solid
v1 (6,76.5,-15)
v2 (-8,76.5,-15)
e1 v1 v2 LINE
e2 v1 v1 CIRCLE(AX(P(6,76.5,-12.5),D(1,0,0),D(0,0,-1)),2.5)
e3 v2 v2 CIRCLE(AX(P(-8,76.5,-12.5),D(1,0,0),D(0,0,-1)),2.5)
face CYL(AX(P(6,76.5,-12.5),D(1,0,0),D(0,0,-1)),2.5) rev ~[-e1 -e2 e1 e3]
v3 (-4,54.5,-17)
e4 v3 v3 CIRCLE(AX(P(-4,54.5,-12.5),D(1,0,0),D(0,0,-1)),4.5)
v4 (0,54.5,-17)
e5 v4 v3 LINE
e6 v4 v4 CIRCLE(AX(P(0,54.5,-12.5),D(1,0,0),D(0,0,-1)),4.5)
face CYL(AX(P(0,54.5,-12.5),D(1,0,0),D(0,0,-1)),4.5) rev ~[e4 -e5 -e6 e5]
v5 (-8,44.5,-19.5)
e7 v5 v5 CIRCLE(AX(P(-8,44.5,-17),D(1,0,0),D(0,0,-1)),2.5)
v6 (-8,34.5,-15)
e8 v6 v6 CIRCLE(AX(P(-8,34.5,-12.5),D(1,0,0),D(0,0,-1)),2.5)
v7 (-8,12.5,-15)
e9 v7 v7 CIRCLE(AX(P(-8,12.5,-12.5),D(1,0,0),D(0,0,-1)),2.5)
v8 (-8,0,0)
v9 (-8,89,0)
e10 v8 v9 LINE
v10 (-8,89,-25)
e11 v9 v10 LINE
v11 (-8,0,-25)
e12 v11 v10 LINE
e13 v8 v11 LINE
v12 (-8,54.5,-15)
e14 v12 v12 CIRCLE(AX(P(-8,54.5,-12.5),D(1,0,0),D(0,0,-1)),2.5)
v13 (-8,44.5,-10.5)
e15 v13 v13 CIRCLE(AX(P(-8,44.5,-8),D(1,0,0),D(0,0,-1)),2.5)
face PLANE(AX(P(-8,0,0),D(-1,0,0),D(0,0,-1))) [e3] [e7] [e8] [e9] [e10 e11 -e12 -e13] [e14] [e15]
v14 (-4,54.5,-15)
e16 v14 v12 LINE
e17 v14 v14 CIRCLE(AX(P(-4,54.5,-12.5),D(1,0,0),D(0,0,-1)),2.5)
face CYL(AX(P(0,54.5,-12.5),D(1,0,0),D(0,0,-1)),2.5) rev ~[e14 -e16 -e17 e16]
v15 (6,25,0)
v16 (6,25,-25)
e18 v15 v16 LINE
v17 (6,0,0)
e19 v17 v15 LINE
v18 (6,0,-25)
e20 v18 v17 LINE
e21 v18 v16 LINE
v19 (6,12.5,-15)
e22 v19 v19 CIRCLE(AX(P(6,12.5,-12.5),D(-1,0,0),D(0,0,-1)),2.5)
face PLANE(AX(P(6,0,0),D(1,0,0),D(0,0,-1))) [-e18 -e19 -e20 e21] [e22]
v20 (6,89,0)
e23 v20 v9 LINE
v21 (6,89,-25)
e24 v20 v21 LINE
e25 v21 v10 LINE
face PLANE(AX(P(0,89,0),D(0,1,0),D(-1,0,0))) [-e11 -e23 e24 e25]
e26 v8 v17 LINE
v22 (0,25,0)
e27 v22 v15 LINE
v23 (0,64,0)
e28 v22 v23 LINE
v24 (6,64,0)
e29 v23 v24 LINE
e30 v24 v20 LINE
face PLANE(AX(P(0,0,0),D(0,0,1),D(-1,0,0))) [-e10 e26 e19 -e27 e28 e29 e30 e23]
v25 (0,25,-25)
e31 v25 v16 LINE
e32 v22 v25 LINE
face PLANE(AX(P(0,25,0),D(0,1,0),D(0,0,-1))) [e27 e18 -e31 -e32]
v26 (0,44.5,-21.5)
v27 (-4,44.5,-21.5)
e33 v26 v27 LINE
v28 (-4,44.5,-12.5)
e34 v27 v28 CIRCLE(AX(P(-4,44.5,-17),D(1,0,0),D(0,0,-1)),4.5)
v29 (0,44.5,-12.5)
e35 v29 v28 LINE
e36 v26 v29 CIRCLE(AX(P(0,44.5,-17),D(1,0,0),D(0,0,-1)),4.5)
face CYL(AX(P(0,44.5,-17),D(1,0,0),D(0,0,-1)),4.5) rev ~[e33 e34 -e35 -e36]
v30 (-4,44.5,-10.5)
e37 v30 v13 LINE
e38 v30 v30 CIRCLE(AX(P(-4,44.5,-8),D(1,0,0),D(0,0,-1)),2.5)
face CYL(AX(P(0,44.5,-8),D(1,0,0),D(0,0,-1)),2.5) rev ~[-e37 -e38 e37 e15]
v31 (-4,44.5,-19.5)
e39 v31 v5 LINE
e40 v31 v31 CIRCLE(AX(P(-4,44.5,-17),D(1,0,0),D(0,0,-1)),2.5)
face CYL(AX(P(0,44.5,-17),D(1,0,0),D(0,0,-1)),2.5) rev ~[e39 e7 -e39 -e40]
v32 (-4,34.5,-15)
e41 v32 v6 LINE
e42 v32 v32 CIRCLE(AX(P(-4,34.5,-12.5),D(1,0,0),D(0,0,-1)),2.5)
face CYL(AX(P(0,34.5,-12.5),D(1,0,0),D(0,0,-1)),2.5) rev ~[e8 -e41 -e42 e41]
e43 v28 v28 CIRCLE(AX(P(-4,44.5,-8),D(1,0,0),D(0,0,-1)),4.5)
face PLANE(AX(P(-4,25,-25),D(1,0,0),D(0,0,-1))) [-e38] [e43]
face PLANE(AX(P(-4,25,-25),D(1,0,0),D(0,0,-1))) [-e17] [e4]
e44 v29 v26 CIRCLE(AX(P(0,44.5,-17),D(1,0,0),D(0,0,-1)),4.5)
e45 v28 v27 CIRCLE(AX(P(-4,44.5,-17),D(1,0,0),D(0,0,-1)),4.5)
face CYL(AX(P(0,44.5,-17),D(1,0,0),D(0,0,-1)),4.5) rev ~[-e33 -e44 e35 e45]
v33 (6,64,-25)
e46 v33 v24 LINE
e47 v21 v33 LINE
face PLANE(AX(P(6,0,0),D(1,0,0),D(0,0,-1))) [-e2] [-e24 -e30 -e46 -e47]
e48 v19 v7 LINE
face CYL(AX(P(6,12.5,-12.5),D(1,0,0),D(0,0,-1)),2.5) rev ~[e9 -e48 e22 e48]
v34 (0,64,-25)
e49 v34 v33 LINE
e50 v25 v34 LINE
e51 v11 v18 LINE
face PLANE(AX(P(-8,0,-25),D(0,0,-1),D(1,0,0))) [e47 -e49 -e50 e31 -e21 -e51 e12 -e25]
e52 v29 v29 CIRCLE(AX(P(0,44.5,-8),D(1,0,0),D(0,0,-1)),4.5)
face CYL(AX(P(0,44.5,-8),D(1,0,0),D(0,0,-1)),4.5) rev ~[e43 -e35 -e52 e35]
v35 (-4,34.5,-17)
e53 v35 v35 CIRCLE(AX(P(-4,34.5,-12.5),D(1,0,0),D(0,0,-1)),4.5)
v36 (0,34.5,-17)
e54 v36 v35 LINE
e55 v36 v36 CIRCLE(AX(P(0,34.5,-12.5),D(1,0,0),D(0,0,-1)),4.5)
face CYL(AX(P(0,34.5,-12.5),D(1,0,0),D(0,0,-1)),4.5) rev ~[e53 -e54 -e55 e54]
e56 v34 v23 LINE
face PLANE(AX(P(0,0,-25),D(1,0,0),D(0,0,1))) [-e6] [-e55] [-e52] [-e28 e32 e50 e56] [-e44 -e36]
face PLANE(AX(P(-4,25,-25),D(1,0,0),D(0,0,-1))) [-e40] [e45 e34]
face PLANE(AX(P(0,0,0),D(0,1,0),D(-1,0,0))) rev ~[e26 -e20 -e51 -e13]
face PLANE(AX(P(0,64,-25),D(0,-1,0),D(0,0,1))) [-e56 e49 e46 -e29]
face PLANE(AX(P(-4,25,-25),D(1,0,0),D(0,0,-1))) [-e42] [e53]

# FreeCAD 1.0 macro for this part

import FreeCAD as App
import Part
import Sketcher

V = App.Vector
Q = App.Units.Quantity

doc = App.newDocument("Part")
params = doc.addObject("Spreadsheet::Sheet", "Params")
for row, (alias, value) in enumerate([
    ("sketch1_width", "8 mm"),
    ("sketch1_height", "25 mm"),
    ("pad1_length", "89 mm"),
    ("sketch2_width", "25 mm"),
    ("pad2_length", "6 mm"),
    ("sketch3_diameter", "5 mm"),
    ("pocket1_length", "14 mm"),
    ("sketch4_diameter", "5 mm"),
    ("sketch5_diameter", "9 mm"),
    ("sketch5_diameter2", "5 mm"),
    ("pocket3_length", "4 mm"),
], start=1):
    params.set(f"A{row}", alias)
    params.set(f"B{row}", "=" + value)
    params.setAlias(f"B{row}", alias)

body = doc.addObject("PartDesign::Body", "Body")

sketch1 = body.newObject("Sketcher::SketchObject", "Sketch")
sketch1.AttachmentSupport = (doc.getObject("XZ_Plane"), [""])
sketch1.MapMode = "FlatFace"
sketch1.addGeometry([
    Part.LineSegment(V(-8, 0, 0), V(0, 0, 0)),
    Part.LineSegment(V(0, 0, 0), V(0, -25, 0)),
    Part.LineSegment(V(0, -25, 0), V(-8, -25, 0)),
    Part.LineSegment(V(-8, -25, 0), V(-8, 0, 0)),
], False)
sketch1.addConstraint([
    Sketcher.Constraint("Coincident", 0, 2, 1, 1),
    Sketcher.Constraint("Coincident", 1, 2, 2, 1),
    Sketcher.Constraint("Coincident", 2, 2, 3, 1),
    Sketcher.Constraint("Coincident", 3, 2, 0, 1),
    Sketcher.Constraint("Horizontal", 0),
    Sketcher.Constraint("Vertical", 1),
    Sketcher.Constraint("Horizontal", 2),
    Sketcher.Constraint("Vertical", 3),
    Sketcher.Constraint("Coincident", 0, 2, -1, 1),
    Sketcher.Constraint("DistanceX", 0, 1, 0, 2, Q("8 mm")),
    Sketcher.Constraint("DistanceY", 1, 2, 1, 1, Q("25 mm")),
])
sketch1.setExpression("Constraints[9]", "Params.sketch1_width")
sketch1.setExpression("Constraints[10]", "Params.sketch1_height")
pad1 = body.newObject("PartDesign::Pad", "Pad")
pad1.Profile = sketch1
pad1.setExpression("Length", "Params.pad1_length")
pad1.Reversed = True

sketch2 = body.newObject("Sketcher::SketchObject", "Sketch001")
sketch2.AttachmentSupport = (doc.getObject("YZ_Plane"), [""])
sketch2.MapMode = "FlatFace"
sketch2.addGeometry([
    Part.LineSegment(V(0, -25, 0), V(25, -25, 0)),
    Part.LineSegment(V(25, -25, 0), V(25, 0, 0)),
    Part.LineSegment(V(25, 0, 0), V(0, 0, 0)),
    Part.LineSegment(V(0, 0, 0), V(0, -25, 0)),
    Part.LineSegment(V(89, -25, 0), V(89, 0, 0)),
    Part.LineSegment(V(89, 0, 0), V(64, 0, 0)),
    Part.LineSegment(V(64, 0, 0), V(64, -25, 0)),
    Part.LineSegment(V(64, -25, 0), V(89, -25, 0)),
], False)
sketch2.addConstraint([
    Sketcher.Constraint("Coincident", 0, 2, 1, 1),
    Sketcher.Constraint("Coincident", 1, 2, 2, 1),
    Sketcher.Constraint("Coincident", 2, 2, 3, 1),
    Sketcher.Constraint("Coincident", 3, 2, 0, 1),
    Sketcher.Constraint("Coincident", 4, 2, 5, 1),
    Sketcher.Constraint("Coincident", 5, 2, 6, 1),
    Sketcher.Constraint("Coincident", 6, 2, 7, 1),
    Sketcher.Constraint("Coincident", 7, 2, 4, 1),
    Sketcher.Constraint("Horizontal", 0),
    Sketcher.Constraint("Vertical", 1),
    Sketcher.Constraint("Horizontal", 2),
    Sketcher.Constraint("Vertical", 3),
    Sketcher.Constraint("Vertical", 4),
    Sketcher.Constraint("Horizontal", 5),
    Sketcher.Constraint("Vertical", 6),
    Sketcher.Constraint("Horizontal", 7),
    Sketcher.Constraint("Coincident", 2, 2, -1, 1),
    Sketcher.Constraint("PointOnObject", 4, 2, -1),
    Sketcher.Constraint("Horizontal", 3, 2, 6, 2),
    Sketcher.Constraint("Equal", 2, 5),
    Sketcher.Constraint("Equal", 7, 1),
    Sketcher.Constraint("DistanceX", 0, 1, 0, 2, Q("25 mm")),
    Sketcher.Constraint("DistanceX", -1, 1, 4, 2, Q("89 mm")),
])
sketch2.setExpression("Constraints[21]", "Params.sketch2_width")
pad2 = body.newObject("PartDesign::Pad", "Pad001")
pad2.Profile = sketch2
pad2.setExpression("Length", "Params.pad2_length")

sketch3 = body.newObject("Sketcher::SketchObject", "Sketch002")
sketch3.AttachmentSupport = (doc.getObject("YZ_Plane"), [""])
sketch3.MapMode = "FlatFace"
sketch3.AttachmentOffset = App.Placement(V(0, 0, 6), App.Rotation())
sketch3.addGeometry([
    Part.Circle(V(12.5, -12.5, 0), V(0, 0, 1), 2.5),
    Part.Circle(V(76.5, -12.5, 0), V(0, 0, 1), 2.5),
], False)
sketch3.addConstraint([
    Sketcher.Constraint("Equal", 0, 1),
    Sketcher.Constraint("Horizontal", 0, 3, 1, 3),
    Sketcher.Constraint("Diameter", 0, Q("5 mm")),
    Sketcher.Constraint("DistanceX", -1, 1, 0, 3, Q("12.5 mm")),
    Sketcher.Constraint("DistanceY", 0, 3, -1, 1, Q("12.5 mm")),
    Sketcher.Constraint("DistanceX", 0, 3, 1, 3, Q("64 mm")),
])
sketch3.setExpression("Constraints[2]", "Params.sketch3_diameter")
pocket1 = body.newObject("PartDesign::Pocket", "Pocket")
pocket1.Profile = sketch3
pocket1.setExpression("Length", "Params.pocket1_length")

sketch4 = body.newObject("Sketcher::SketchObject", "Sketch003")
sketch4.AttachmentSupport = (doc.getObject("YZ_Plane"), [""])
sketch4.MapMode = "FlatFace"
sketch4.addGeometry([
    Part.Circle(V(44.5, -8, 0), V(0, 0, 1), 2.5),
    Part.Circle(V(44.5, -17, 0), V(0, 0, 1), 2.5),
    Part.Circle(V(34.5, -12.5, 0), V(0, 0, 1), 2.5),
    Part.Circle(V(54.5, -12.5, 0), V(0, 0, 1), 2.5),
], False)
sketch4.addConstraint([
    Sketcher.Constraint("Equal", 0, 1),
    Sketcher.Constraint("Equal", 1, 2),
    Sketcher.Constraint("Equal", 2, 3),
    Sketcher.Constraint("Horizontal", 2, 3, 3, 3),
    Sketcher.Constraint("Vertical", 0, 3, 1, 3),
    Sketcher.Constraint("Diameter", 0, Q("5 mm")),
    Sketcher.Constraint("DistanceY", 0, 3, -1, 1, Q("8 mm")),
    Sketcher.Constraint("DistanceX", 2, 3, 0, 3, Q("10 mm")),
    Sketcher.Constraint("DistanceX", 0, 3, 3, 3, Q("10 mm")),
    Sketcher.Constraint("DistanceX", -1, 1, 0, 3, Q("44.5 mm")),
    Sketcher.Constraint("DistanceY", 2, 3, 0, 3, Q("4.5 mm")),
    Sketcher.Constraint("DistanceY", 1, 3, 2, 3, Q("4.5 mm")),
])
sketch4.setExpression("Constraints[5]", "Params.sketch4_diameter")
pocket2 = body.newObject("PartDesign::Pocket", "Pocket001")
pocket2.Profile = sketch4
pocket2.Type = "UpToFirst"

sketch5 = body.newObject("Sketcher::SketchObject", "Sketch004")
sketch5.AttachmentSupport = (doc.getObject("YZ_Plane"), [""])
sketch5.MapMode = "FlatFace"
sketch5.addGeometry([
    Part.Circle(V(54.5, -12.5, 0), V(0, 0, 1), 4.5),
    Part.Circle(V(54.5, -12.5, 0), V(0, 0, 1), 2.5),
    Part.Circle(V(44.5, -8, 0), V(0, 0, 1), 4.5),
    Part.Circle(V(44.5, -8, 0), V(0, 0, 1), 2.5),
    Part.Circle(V(44.5, -17, 0), V(0, 0, 1), 4.5),
    Part.Circle(V(44.5, -17, 0), V(0, 0, 1), 2.5),
    Part.Circle(V(34.5, -12.5, 0), V(0, 0, 1), 4.5),
    Part.Circle(V(34.5, -12.5, 0), V(0, 0, 1), 2.5),
], False)
sketch5.addConstraint([
    Sketcher.Constraint("Coincident", 1, 3, 0, 3),
    Sketcher.Constraint("Coincident", 3, 3, 2, 3),
    Sketcher.Constraint("Coincident", 5, 3, 4, 3),
    Sketcher.Constraint("Coincident", 7, 3, 6, 3),
    Sketcher.Constraint("Equal", 0, 2),
    Sketcher.Constraint("Equal", 1, 3),
    Sketcher.Constraint("Equal", 2, 4),
    Sketcher.Constraint("Equal", 3, 5),
    Sketcher.Constraint("Equal", 4, 6),
    Sketcher.Constraint("Equal", 5, 7),
    Sketcher.Constraint("Horizontal", 1, 3, 6, 3),
    Sketcher.Constraint("Vertical", 3, 3, 4, 3),
    Sketcher.Constraint("Diameter", 0, Q("9 mm")),
    Sketcher.Constraint("Diameter", 1, Q("5 mm")),
    Sketcher.Constraint("DistanceY", 4, 3, 2, 3, Q("9 mm")),
    Sketcher.Constraint("DistanceY", 2, 3, -1, 1, Q("8 mm")),
    Sketcher.Constraint("DistanceX", 2, 3, 0, 3, Q("10 mm")),
    Sketcher.Constraint("DistanceX", 6, 3, 2, 3, Q("10 mm")),
    Sketcher.Constraint("DistanceX", -1, 1, 0, 3, Q("54.5 mm")),
    Sketcher.Constraint("DistanceY", 0, 3, -1, 1, Q("12.5 mm")),
])
sketch5.setExpression("Constraints[12]", "Params.sketch5_diameter")
sketch5.setExpression("Constraints[13]", "Params.sketch5_diameter2")
pocket3 = body.newObject("PartDesign::Pocket", "Pocket002")
pocket3.Profile = sketch5
pocket3.setExpression("Length", "Params.pocket3_length")

doc.recompute()
